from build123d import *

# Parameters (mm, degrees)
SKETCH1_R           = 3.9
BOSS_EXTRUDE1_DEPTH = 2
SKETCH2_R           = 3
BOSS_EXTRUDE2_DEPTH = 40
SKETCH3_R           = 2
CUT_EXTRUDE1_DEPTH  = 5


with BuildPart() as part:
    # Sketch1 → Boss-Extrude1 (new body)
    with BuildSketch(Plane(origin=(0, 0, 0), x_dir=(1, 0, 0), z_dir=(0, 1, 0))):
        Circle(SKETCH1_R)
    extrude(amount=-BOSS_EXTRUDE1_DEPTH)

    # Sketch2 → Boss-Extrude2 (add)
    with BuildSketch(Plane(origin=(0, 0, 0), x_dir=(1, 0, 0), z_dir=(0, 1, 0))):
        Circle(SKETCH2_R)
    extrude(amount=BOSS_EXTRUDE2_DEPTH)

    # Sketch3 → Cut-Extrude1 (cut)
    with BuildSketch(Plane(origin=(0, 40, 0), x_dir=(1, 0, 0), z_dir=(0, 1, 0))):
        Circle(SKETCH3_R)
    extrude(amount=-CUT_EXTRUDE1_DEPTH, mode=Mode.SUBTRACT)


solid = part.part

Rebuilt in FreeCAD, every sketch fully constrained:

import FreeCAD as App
import Part
import Sketcher
from FreeCAD import Vector
Q = App.Units.Quantity

doc = App.newDocument("Part")
body = doc.addObject("PartDesign::Body", "Body")

# Sketch on XZ plane
sketch1 = doc.addObject("Sketcher::SketchObject", "Sketch")
body.addObject(sketch1)
sketch1.AttachmentSupport = (doc.XZ_Plane, [""])
sketch1.MapMode = "FlatFace"
sketch1.addGeometry(Part.Circle(Vector(0, 0, 0), Vector(0, 0, 1), 3.9), False)
sketch1.addConstraint(Sketcher.Constraint("Coincident", 0, 3, -1, 1))
sketch1.addConstraint(Sketcher.Constraint("Diameter", 0, Q("7.8 mm")))
pad1 = doc.addObject("PartDesign::Pad", "Pad")
body.addObject(pad1)
pad1.Profile = sketch1
pad1.Length = 2

# Sketch on XZ plane
sketch2 = doc.addObject("Sketcher::SketchObject", "Sketch001")
body.addObject(sketch2)
sketch2.AttachmentSupport = (doc.XZ_Plane, [""])
sketch2.MapMode = "FlatFace"
sketch2.addGeometry(Part.Circle(Vector(0, 0, 0), Vector(0, 0, 1), 3), False)
sketch2.addConstraint(Sketcher.Constraint("Coincident", 0, 3, -1, 1))
sketch2.addConstraint(Sketcher.Constraint("Diameter", 0, Q("6 mm")))
pad2 = doc.addObject("PartDesign::Pad", "Pad001")
body.addObject(pad2)
pad2.Profile = sketch2
pad2.Length = 40
pad2.Reversed = True

# Sketch on XZ plane
sketch3 = doc.addObject("Sketcher::SketchObject", "Sketch002")
body.addObject(sketch3)
sketch3.AttachmentSupport = (doc.XZ_Plane, [""])
sketch3.MapMode = "FlatFace"
sketch3.AttachmentOffset = App.Placement(Vector(0, 0, -40), App.Rotation())
sketch3.addGeometry(Part.Circle(Vector(0, 0, 0), Vector(0, 0, 1), 2), False)
sketch3.addConstraint(Sketcher.Constraint("Coincident", 0, 3, -1, 1))
sketch3.addConstraint(Sketcher.Constraint("Diameter", 0, Q("4 mm")))
pocket1 = doc.addObject("PartDesign::Pocket", "Pocket")
body.addObject(pocket1)
pocket1.Profile = sketch3
pocket1.Length = 5
pocket1.Reversed = True

doc.recompute()
